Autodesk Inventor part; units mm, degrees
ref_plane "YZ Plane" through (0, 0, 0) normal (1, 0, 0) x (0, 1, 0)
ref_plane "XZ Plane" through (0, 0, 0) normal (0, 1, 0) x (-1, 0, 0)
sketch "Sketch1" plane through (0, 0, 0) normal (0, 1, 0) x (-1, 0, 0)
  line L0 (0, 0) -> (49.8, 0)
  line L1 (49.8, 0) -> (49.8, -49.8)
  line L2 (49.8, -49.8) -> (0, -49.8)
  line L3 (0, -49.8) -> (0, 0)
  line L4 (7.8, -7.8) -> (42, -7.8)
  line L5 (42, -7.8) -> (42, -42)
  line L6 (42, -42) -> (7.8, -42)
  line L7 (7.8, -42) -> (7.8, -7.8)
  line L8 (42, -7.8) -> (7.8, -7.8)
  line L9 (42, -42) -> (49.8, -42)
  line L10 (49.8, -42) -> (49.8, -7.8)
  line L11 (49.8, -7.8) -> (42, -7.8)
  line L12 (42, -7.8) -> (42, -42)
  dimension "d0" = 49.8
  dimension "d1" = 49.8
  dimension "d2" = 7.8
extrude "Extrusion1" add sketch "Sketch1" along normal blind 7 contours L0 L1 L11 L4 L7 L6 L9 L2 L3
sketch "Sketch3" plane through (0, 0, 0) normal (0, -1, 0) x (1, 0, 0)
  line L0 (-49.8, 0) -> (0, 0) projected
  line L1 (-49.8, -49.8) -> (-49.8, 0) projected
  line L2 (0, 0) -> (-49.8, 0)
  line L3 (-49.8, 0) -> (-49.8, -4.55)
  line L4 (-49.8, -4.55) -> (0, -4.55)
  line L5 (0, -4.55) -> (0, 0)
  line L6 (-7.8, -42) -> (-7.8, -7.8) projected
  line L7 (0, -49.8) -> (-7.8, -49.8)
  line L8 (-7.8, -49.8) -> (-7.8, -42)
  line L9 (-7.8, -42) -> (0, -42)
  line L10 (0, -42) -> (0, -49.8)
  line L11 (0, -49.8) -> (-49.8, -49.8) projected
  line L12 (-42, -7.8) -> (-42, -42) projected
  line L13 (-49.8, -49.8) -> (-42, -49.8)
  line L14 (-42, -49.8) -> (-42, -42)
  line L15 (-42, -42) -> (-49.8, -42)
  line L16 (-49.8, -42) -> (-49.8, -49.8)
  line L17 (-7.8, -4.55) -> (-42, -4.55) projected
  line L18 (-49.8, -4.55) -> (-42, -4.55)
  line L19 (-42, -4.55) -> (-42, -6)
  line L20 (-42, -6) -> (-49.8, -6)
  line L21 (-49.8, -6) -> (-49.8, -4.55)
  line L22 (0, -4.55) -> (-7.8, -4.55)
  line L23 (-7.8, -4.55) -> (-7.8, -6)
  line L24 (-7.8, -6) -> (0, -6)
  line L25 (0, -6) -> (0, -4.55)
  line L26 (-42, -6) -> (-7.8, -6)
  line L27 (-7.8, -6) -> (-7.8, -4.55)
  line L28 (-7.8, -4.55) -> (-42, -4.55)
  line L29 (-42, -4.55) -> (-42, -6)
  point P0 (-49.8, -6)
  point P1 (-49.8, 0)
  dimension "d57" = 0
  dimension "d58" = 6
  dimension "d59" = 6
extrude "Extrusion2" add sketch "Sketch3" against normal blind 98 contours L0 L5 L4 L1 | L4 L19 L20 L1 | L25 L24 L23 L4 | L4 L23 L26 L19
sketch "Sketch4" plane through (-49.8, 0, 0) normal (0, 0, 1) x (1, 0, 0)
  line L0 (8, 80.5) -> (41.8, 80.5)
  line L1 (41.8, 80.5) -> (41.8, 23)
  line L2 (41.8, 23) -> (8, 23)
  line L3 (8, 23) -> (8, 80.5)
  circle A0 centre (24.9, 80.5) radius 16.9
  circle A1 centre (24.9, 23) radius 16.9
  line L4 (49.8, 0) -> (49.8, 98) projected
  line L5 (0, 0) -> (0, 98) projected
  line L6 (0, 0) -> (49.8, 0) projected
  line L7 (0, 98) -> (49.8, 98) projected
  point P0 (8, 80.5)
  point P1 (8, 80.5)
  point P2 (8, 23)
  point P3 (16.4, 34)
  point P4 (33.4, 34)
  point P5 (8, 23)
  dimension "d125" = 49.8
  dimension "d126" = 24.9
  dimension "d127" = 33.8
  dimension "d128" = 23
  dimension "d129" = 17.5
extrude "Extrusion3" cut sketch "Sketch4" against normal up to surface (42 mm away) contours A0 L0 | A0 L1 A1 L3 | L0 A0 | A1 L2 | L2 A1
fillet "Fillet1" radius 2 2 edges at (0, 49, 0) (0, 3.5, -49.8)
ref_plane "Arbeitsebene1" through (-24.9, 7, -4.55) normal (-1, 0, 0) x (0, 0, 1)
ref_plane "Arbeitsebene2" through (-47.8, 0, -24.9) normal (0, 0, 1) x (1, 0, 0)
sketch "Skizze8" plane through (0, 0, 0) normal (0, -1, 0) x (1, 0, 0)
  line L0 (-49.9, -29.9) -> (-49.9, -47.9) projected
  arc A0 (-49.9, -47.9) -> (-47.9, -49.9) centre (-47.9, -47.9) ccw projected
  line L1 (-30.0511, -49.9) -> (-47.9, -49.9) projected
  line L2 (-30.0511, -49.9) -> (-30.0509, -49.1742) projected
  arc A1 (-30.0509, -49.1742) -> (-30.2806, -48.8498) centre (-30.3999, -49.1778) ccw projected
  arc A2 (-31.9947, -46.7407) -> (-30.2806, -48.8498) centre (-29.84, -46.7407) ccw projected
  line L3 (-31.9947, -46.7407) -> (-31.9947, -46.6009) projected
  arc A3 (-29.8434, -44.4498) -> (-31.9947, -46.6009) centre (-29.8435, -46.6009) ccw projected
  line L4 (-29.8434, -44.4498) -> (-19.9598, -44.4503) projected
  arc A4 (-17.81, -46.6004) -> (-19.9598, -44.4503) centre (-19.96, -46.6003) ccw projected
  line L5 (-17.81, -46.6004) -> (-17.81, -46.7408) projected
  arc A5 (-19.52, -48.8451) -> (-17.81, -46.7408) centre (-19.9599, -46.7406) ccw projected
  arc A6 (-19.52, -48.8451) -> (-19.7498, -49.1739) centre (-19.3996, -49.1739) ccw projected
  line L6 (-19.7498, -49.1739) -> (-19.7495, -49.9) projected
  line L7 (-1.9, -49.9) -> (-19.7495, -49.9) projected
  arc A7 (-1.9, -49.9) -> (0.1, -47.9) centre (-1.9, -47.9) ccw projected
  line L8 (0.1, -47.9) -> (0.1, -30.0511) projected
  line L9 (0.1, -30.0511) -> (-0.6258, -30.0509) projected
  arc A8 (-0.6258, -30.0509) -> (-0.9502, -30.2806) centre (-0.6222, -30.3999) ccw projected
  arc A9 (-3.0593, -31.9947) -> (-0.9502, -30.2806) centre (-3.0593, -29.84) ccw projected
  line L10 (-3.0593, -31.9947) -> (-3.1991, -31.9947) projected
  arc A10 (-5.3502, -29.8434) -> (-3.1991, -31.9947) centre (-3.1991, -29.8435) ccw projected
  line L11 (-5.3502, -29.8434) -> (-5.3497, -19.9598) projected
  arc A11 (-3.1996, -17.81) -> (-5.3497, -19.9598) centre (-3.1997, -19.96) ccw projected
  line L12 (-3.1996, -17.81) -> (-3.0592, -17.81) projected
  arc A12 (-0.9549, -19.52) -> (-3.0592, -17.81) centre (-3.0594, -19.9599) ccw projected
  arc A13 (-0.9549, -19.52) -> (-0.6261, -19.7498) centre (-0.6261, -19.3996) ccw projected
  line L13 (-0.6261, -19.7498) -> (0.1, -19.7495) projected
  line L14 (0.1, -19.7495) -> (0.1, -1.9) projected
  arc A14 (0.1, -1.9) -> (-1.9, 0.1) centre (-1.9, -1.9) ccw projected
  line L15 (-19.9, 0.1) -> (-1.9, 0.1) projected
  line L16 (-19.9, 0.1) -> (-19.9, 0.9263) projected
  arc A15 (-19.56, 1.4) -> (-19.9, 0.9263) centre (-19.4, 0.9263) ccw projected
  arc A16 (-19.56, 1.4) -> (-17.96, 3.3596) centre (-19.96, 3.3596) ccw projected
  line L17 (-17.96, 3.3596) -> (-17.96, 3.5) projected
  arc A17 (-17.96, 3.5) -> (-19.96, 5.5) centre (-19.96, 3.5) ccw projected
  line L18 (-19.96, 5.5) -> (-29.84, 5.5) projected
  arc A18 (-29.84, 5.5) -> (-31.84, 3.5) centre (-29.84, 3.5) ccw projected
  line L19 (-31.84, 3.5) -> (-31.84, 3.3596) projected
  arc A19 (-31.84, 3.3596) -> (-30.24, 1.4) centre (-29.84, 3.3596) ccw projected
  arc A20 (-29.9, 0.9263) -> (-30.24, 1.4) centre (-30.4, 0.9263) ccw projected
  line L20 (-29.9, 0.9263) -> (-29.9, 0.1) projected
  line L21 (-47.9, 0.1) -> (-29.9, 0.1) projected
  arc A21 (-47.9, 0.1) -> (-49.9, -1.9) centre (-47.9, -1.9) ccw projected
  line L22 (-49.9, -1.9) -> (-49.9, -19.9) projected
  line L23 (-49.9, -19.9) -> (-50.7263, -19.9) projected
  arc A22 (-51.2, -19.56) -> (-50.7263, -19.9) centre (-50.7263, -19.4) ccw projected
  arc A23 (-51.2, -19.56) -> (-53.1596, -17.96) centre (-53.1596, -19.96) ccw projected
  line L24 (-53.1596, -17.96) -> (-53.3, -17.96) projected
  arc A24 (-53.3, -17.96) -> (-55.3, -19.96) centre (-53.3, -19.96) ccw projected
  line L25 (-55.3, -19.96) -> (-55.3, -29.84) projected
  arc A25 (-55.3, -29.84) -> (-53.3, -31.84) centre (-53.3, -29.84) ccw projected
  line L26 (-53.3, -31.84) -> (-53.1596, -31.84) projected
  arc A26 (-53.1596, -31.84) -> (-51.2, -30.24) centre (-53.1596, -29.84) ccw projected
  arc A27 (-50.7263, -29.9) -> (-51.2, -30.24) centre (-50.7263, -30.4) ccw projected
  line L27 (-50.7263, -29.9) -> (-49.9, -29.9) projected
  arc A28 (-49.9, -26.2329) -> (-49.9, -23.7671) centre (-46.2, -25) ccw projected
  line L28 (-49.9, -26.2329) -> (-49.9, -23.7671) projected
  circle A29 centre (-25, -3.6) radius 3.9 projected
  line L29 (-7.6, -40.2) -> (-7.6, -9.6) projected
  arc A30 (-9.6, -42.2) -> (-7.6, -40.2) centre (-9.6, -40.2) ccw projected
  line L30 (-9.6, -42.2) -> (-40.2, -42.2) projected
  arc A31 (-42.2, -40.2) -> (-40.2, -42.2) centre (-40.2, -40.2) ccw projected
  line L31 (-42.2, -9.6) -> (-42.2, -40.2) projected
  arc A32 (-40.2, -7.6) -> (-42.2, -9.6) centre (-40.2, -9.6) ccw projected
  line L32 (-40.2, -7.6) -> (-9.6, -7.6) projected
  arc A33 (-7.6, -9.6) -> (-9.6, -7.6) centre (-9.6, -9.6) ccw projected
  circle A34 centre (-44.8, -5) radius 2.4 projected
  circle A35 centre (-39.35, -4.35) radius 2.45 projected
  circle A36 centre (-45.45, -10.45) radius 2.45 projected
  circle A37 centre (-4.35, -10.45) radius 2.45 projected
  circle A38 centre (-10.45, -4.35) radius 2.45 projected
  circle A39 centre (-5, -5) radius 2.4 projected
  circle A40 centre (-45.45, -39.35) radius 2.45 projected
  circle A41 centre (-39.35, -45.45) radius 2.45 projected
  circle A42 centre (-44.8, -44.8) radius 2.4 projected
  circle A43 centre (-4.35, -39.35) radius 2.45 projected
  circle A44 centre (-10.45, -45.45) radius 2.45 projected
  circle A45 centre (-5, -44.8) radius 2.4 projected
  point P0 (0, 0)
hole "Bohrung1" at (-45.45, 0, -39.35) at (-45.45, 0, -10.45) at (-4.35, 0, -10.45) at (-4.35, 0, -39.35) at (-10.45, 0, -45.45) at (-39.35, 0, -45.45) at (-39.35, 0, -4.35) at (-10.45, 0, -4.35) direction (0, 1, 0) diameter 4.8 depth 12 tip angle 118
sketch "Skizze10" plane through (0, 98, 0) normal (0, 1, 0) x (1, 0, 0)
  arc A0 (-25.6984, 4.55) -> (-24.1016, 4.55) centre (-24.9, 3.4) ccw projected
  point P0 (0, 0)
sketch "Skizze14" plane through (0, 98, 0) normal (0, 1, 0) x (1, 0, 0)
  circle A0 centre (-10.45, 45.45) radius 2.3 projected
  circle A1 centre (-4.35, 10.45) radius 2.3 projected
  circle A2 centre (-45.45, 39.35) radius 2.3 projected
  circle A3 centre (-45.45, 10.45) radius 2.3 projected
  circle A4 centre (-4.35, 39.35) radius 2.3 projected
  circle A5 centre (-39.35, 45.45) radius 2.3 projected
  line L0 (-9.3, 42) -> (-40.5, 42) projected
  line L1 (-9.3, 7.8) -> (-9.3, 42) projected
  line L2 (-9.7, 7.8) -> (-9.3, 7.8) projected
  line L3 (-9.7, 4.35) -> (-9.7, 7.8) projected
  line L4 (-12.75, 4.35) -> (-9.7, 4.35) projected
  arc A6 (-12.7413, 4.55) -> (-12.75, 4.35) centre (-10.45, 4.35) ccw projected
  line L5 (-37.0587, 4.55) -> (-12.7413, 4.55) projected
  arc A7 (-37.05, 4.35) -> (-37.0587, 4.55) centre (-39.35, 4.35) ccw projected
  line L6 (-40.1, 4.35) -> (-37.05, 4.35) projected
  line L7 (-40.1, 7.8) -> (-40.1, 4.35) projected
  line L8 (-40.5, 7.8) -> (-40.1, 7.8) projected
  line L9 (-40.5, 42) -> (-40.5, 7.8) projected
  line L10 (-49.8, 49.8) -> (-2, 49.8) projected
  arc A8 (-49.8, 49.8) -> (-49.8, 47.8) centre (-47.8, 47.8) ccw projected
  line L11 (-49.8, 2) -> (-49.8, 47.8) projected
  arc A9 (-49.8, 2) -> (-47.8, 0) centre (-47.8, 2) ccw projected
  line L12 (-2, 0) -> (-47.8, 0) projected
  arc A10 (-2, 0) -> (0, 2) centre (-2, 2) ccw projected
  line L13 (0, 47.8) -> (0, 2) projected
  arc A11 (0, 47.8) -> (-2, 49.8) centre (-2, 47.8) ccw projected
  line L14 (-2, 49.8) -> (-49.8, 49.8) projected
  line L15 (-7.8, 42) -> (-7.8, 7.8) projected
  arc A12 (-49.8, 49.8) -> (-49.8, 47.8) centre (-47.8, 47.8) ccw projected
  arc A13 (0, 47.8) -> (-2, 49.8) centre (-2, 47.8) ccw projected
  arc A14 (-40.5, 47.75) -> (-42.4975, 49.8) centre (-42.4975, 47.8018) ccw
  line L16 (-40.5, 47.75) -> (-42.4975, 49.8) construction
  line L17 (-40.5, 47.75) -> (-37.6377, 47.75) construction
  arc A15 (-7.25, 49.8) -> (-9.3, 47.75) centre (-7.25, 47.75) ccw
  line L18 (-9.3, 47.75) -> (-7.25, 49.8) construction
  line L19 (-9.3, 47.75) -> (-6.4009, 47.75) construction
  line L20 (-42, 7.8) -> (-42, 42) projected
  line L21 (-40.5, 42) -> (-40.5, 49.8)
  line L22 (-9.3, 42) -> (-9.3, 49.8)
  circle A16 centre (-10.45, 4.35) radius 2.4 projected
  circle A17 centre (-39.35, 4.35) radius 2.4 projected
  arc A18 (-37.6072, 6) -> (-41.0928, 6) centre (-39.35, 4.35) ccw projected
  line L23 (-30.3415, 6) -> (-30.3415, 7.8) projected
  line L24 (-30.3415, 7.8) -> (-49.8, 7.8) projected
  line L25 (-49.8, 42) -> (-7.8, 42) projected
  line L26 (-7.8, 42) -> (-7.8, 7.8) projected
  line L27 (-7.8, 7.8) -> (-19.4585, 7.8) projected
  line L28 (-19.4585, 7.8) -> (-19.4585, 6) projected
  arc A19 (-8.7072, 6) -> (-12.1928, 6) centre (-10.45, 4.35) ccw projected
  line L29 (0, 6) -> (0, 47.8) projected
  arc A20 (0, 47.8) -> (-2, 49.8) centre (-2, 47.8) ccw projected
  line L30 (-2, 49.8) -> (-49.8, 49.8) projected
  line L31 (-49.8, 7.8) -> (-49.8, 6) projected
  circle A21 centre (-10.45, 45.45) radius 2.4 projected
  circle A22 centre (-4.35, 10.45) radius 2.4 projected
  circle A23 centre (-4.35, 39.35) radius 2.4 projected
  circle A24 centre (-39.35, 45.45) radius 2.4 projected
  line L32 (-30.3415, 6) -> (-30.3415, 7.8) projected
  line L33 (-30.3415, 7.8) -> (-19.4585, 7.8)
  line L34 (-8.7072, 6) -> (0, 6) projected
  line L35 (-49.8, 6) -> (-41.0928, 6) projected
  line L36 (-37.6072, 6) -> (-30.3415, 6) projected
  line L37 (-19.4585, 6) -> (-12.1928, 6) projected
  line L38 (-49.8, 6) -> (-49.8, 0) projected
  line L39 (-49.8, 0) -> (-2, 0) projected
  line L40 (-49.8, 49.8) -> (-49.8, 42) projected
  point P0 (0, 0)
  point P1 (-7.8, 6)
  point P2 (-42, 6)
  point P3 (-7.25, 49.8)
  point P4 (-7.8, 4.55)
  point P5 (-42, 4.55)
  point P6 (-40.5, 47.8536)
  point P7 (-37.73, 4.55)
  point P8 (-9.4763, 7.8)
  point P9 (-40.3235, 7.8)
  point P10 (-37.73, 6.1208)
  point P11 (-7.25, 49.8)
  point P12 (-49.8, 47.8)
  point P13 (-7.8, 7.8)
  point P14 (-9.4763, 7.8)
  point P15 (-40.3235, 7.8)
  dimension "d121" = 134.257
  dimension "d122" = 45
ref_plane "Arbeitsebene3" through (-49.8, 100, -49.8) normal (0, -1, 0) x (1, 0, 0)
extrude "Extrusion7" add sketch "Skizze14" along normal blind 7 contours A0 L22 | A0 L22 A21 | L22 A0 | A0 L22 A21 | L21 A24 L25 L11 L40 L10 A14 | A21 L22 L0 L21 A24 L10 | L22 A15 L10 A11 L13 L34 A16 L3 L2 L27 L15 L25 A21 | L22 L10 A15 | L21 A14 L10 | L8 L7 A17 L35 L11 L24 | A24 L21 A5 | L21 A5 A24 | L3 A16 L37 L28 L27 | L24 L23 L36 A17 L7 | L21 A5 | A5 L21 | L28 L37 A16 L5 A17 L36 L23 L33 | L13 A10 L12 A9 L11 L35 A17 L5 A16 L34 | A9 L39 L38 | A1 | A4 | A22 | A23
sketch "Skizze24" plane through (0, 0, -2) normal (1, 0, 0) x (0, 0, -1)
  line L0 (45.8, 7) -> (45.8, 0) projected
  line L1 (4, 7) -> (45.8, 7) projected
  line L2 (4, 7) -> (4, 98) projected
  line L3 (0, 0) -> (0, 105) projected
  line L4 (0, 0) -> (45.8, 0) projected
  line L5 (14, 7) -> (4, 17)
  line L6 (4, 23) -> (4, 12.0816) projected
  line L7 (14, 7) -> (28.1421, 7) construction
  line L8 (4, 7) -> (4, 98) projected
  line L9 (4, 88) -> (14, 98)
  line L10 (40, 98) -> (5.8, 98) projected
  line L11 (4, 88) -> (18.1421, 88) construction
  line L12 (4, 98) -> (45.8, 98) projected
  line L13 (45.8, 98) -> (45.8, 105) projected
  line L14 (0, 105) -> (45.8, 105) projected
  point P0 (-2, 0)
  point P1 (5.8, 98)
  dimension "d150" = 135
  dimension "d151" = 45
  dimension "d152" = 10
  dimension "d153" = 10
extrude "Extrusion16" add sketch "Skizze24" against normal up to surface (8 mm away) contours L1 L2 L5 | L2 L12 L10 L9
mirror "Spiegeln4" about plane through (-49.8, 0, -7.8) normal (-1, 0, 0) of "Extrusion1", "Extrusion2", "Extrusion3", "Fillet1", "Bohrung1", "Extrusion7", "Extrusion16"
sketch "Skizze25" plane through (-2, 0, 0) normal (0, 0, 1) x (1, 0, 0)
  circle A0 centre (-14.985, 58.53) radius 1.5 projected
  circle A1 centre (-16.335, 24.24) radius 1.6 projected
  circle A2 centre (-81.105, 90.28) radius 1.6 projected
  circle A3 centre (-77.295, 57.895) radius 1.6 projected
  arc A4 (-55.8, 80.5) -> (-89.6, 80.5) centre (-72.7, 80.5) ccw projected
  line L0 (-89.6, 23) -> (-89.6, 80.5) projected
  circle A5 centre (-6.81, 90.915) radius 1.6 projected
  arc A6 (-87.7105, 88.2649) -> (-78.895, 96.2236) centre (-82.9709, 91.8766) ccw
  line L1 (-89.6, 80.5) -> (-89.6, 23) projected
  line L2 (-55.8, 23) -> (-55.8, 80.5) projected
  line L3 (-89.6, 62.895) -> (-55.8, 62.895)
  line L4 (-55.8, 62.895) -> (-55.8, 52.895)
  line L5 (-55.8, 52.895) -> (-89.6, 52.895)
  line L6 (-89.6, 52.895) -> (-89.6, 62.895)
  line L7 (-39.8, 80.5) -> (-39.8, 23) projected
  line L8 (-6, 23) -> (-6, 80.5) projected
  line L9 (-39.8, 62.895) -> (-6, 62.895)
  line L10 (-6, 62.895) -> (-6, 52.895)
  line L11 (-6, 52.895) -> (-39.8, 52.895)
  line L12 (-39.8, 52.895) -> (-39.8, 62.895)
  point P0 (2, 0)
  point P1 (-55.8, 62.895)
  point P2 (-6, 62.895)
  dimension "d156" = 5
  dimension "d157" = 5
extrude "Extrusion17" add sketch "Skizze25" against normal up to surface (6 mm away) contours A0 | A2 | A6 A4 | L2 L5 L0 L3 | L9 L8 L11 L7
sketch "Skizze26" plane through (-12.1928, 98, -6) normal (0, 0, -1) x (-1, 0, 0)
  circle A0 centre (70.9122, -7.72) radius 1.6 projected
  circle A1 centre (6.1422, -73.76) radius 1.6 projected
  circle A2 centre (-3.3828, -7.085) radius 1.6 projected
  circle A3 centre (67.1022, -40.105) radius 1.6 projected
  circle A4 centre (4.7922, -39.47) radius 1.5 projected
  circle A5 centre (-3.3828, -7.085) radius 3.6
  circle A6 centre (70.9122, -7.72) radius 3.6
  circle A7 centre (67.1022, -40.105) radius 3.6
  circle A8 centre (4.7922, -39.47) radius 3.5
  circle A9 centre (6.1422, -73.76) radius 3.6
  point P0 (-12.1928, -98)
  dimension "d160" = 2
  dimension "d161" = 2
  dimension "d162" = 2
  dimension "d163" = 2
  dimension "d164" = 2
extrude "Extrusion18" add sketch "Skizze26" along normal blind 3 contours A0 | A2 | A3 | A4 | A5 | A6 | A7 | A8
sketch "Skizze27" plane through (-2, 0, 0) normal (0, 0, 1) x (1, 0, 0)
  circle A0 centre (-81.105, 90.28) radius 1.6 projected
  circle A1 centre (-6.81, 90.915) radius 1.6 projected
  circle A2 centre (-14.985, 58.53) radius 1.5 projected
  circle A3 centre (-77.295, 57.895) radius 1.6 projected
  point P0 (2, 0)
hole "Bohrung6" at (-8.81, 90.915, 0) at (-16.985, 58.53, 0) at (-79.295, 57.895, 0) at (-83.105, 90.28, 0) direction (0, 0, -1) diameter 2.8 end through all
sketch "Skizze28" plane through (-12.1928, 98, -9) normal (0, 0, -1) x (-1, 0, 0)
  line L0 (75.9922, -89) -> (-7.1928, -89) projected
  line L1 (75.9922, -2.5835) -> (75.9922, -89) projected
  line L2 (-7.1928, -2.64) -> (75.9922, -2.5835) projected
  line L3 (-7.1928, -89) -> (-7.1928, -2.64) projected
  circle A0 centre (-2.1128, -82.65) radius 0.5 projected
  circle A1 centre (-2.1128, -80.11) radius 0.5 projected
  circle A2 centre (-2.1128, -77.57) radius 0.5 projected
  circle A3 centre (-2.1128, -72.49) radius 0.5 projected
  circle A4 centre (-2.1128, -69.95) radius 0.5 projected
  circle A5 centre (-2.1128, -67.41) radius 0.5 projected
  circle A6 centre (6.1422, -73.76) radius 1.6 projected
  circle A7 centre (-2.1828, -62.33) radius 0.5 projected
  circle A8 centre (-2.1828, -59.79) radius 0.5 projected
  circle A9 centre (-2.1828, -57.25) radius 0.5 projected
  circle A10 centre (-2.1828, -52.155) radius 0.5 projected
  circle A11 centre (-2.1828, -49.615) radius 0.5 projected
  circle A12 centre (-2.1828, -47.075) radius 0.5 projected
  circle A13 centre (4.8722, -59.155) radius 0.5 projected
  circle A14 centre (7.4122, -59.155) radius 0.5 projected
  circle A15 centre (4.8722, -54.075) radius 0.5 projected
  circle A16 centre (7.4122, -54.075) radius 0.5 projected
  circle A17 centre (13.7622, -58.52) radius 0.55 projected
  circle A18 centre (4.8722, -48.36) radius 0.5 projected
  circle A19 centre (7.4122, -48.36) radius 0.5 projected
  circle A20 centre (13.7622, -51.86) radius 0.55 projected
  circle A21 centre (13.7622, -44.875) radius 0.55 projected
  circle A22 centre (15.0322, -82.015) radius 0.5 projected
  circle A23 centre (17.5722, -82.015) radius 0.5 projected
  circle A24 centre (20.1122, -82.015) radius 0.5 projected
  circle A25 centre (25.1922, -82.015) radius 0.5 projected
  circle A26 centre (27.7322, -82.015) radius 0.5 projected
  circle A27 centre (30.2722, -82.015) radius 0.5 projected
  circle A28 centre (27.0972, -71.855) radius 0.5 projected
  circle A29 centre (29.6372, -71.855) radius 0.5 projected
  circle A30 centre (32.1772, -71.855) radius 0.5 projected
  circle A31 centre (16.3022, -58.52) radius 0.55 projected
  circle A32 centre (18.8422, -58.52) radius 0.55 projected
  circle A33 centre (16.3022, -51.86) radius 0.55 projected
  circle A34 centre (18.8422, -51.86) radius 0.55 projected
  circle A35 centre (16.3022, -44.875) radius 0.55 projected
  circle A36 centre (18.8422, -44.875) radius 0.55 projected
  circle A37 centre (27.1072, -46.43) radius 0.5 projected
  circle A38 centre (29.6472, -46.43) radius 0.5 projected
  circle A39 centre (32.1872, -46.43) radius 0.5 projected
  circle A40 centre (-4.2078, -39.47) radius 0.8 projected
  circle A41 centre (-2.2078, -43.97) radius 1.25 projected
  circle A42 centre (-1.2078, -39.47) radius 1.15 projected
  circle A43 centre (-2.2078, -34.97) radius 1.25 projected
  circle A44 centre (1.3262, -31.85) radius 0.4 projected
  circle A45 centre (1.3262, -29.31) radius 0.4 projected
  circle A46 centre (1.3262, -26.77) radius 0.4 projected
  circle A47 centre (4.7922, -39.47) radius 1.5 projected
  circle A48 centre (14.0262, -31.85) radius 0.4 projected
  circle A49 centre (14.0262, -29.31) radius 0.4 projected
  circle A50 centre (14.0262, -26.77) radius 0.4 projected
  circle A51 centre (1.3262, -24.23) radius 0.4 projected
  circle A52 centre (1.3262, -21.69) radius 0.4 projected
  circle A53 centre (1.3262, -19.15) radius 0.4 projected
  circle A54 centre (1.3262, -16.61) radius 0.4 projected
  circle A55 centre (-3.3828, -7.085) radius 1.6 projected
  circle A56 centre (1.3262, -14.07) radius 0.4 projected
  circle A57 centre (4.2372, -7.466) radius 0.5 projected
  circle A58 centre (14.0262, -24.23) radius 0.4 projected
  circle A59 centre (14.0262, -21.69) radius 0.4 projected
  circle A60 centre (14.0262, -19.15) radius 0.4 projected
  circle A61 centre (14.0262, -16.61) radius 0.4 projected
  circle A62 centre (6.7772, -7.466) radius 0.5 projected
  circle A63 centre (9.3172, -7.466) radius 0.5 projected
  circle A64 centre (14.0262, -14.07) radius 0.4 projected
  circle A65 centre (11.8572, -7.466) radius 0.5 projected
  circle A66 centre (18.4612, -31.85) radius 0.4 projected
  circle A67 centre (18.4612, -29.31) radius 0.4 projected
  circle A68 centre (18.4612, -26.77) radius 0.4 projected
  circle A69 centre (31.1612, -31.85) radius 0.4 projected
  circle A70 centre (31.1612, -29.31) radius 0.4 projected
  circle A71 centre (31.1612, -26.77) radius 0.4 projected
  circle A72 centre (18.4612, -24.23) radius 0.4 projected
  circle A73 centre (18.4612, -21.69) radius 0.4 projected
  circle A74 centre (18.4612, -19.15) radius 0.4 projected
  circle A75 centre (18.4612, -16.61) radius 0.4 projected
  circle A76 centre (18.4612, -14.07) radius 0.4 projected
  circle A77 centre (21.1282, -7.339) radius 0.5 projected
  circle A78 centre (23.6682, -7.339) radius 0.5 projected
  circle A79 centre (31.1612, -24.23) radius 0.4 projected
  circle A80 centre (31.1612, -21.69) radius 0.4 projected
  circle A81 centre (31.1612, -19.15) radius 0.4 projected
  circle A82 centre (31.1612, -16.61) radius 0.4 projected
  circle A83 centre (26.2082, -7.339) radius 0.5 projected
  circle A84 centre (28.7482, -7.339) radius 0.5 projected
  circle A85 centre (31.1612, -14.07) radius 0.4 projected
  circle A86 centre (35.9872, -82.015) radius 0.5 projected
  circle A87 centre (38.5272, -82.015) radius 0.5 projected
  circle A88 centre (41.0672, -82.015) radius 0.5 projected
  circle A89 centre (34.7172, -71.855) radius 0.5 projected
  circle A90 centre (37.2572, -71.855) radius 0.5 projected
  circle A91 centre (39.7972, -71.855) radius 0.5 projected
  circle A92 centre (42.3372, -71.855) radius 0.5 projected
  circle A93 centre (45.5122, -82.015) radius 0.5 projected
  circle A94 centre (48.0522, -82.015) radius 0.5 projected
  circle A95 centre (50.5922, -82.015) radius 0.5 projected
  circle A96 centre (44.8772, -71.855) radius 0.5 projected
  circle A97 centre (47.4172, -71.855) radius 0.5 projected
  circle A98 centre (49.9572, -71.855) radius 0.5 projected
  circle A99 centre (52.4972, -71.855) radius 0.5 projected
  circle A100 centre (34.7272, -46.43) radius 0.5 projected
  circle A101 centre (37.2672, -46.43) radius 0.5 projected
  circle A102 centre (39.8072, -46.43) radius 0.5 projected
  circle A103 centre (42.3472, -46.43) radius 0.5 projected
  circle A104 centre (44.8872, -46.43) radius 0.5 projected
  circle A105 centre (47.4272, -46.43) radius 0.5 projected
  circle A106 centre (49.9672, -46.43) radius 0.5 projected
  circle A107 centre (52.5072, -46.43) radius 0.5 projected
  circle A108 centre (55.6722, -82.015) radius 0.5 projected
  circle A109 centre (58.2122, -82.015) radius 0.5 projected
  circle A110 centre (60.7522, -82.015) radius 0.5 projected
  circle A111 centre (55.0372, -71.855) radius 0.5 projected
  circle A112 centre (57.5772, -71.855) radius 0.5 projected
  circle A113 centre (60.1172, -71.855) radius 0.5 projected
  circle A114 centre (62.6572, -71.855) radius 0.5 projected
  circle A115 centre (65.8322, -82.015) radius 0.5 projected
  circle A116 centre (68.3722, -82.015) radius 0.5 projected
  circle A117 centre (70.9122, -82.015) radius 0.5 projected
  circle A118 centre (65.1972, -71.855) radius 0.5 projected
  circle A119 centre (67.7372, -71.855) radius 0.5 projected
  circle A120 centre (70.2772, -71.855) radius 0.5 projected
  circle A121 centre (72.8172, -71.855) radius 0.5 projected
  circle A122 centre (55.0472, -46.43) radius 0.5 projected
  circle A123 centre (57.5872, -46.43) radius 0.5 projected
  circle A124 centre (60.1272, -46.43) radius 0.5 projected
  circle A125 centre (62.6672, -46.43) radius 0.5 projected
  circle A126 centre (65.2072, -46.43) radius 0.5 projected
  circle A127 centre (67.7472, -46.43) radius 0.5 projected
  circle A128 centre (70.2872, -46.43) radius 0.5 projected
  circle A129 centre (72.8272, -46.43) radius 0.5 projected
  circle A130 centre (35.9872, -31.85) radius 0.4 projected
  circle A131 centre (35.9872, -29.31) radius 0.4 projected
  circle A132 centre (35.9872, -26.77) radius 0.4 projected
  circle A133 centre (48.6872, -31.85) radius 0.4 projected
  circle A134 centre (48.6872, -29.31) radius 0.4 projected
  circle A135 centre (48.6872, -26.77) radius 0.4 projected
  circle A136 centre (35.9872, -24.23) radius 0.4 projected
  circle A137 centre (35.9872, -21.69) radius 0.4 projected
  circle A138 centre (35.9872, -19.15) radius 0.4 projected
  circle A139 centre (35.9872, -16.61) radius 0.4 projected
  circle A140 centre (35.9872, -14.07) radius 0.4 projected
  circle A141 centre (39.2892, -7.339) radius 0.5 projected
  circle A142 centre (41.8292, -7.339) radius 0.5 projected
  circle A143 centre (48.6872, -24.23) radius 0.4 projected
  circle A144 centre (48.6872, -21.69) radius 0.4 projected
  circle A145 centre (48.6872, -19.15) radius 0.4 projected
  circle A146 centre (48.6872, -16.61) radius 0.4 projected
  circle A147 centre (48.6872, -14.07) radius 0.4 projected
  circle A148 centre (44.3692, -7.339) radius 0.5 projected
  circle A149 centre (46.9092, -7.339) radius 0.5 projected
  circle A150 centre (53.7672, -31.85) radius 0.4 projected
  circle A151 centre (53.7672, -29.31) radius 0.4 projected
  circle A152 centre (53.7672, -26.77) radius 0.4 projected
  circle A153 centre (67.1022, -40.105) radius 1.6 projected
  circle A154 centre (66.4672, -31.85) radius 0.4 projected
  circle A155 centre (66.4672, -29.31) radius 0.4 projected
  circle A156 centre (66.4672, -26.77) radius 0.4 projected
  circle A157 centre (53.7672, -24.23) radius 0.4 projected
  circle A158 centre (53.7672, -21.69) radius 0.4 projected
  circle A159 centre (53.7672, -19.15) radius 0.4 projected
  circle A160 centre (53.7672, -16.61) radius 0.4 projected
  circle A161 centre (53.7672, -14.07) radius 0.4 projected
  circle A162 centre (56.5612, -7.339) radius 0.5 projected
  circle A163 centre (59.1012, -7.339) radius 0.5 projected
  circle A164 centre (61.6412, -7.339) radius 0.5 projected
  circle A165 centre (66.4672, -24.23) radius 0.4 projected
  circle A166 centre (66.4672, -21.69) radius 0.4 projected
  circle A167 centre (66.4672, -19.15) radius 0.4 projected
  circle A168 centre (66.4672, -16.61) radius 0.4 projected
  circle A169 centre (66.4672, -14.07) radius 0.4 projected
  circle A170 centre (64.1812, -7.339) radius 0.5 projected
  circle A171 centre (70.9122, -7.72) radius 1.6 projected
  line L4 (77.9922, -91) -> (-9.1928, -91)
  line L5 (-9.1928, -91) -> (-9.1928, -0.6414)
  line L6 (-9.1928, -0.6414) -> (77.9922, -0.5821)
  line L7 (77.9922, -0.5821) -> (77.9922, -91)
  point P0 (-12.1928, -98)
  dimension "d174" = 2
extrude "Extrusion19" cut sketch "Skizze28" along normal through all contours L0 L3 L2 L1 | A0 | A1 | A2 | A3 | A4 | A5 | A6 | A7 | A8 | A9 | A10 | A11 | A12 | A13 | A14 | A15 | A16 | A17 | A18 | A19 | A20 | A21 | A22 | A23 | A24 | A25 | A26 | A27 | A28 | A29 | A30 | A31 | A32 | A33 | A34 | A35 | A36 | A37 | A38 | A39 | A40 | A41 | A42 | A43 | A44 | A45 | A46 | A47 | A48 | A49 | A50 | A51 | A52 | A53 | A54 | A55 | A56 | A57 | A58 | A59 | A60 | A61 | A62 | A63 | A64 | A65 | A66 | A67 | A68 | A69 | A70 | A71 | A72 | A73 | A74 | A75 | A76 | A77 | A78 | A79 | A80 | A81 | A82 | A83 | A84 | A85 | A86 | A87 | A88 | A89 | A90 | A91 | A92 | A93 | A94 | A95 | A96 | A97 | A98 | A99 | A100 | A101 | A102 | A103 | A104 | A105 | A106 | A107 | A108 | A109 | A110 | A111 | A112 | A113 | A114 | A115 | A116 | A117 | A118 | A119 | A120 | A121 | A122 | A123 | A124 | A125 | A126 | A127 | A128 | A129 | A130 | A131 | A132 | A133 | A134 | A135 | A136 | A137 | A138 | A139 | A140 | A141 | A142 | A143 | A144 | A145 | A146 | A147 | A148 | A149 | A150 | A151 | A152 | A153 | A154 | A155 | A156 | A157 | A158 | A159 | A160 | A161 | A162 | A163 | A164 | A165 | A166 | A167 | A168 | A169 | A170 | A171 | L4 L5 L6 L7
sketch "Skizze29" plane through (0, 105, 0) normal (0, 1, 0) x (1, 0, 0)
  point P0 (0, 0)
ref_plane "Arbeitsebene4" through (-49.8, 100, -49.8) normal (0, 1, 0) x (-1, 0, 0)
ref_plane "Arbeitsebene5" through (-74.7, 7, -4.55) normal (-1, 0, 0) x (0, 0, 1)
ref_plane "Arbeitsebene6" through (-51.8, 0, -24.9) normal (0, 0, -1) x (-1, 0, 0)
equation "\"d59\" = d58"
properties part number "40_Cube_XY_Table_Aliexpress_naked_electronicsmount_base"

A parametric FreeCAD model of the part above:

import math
import FreeCAD as App
import Part
import Sketcher
Q = App.Units.Quantity


def edges_at(feature, points):
    """Names of the edges that pass closest to the given points."""
    edges = feature.Shape.Edges
    near = lambda p: min(range(len(edges)), key=lambda i: edges[i].distToShape(Part.Vertex(*p))[0])
    return sorted({f"Edge{near(p) + 1}" for p in points})

doc = App.newDocument("Part")
body = doc.addObject("PartDesign::Body", "Body")

# Sketch on XZ plane
sketch1 = doc.addObject("Sketcher::SketchObject", "Sketch")
body.addObject(sketch1)
sketch1.AttachmentSupport = (doc.XZ_Plane, [""])
sketch1.MapMode = "FlatFace"
sketch1.addGeometry(Part.LineSegment(App.Vector(-49.8, 0, 0), App.Vector(0, 0, 0)), False)
sketch1.addGeometry(Part.LineSegment(App.Vector(0, 0, 0), App.Vector(0, -49.8, 0)), False)
sketch1.addGeometry(Part.LineSegment(App.Vector(0, -49.8, 0), App.Vector(-49.8, -49.8, 0)), False)
sketch1.addGeometry(Part.LineSegment(App.Vector(-49.8, -49.8, 0), App.Vector(-49.8, -42, 0)), False)
sketch1.addGeometry(Part.LineSegment(App.Vector(-49.8, -42, 0), App.Vector(-7.8, -42, 0)), False)
sketch1.addGeometry(Part.LineSegment(App.Vector(-7.8, -42, 0), App.Vector(-7.8, -7.8, 0)), False)
sketch1.addGeometry(Part.LineSegment(App.Vector(-7.8, -7.8, 0), App.Vector(-49.8, -7.8, 0)), False)
sketch1.addGeometry(Part.LineSegment(App.Vector(-49.8, -7.8, 0), App.Vector(-49.8, 0, 0)), False)
sketch1.addConstraint(Sketcher.Constraint("Coincident", 0, 2, 1, 1))
sketch1.addConstraint(Sketcher.Constraint("Coincident", 1, 2, 2, 1))
sketch1.addConstraint(Sketcher.Constraint("Coincident", 2, 2, 3, 1))
sketch1.addConstraint(Sketcher.Constraint("Coincident", 3, 2, 4, 1))
sketch1.addConstraint(Sketcher.Constraint("Coincident", 4, 2, 5, 1))
sketch1.addConstraint(Sketcher.Constraint("Coincident", 5, 2, 6, 1))
sketch1.addConstraint(Sketcher.Constraint("Coincident", 6, 2, 7, 1))
sketch1.addConstraint(Sketcher.Constraint("Coincident", 7, 2, 0, 1))
sketch1.addConstraint(Sketcher.Constraint("Horizontal", 0))
sketch1.addConstraint(Sketcher.Constraint("Vertical", 1))
sketch1.addConstraint(Sketcher.Constraint("Horizontal", 2))
sketch1.addConstraint(Sketcher.Constraint("Vertical", 3))
sketch1.addConstraint(Sketcher.Constraint("Horizontal", 4))
sketch1.addConstraint(Sketcher.Constraint("Vertical", 5))
sketch1.addConstraint(Sketcher.Constraint("Horizontal", 6))
sketch1.addConstraint(Sketcher.Constraint("Vertical", 7))
sketch1.addConstraint(Sketcher.Constraint("Coincident", 0, 2, -1, 1))
sketch1.addConstraint(Sketcher.Constraint("Vertical", 3, 2, 6, 2))
sketch1.addConstraint(Sketcher.Constraint("Equal", 2, 1))
sketch1.addConstraint(Sketcher.Constraint("Equal", 3, 7))
sketch1.addConstraint(Sketcher.Constraint("DistanceX", 0, 1, 0, 2, 49.8))
sketch1.addConstraint(Sketcher.Constraint("DistanceY", 3, 1, 3, 2, 7.8))
sketch1.addConstraint(Sketcher.Constraint("DistanceX", 4, 2, -1, 1, 7.8))
pad1 = doc.addObject("PartDesign::Pad", "Pad")
body.addObject(pad1)
pad1.Profile = sketch1
pad1.Length = 7
pad1.Reversed = True

# Sketch on XZ plane
sketch2 = doc.addObject("Sketcher::SketchObject", "Sketch001")
body.addObject(sketch2)
sketch2.AttachmentSupport = (doc.XZ_Plane, [""])
sketch2.MapMode = "FlatFace"
sketch2.addGeometry(Part.LineSegment(App.Vector(0, 0, 0), App.Vector(-49.8, 0, 0)), False)
sketch2.addGeometry(Part.LineSegment(App.Vector(-49.8, 0, 0), App.Vector(-49.8, -6, 0)), False)
sketch2.addGeometry(Part.LineSegment(App.Vector(-49.8, -6, 0), App.Vector(0, -6, 0)), False)
sketch2.addGeometry(Part.LineSegment(App.Vector(0, -6, 0), App.Vector(0, 0, 0)), False)
sketch2.addConstraint(Sketcher.Constraint("Coincident", 0, 2, 1, 1))
sketch2.addConstraint(Sketcher.Constraint("Coincident", 1, 2, 2, 1))
sketch2.addConstraint(Sketcher.Constraint("Coincident", 2, 2, 3, 1))
sketch2.addConstraint(Sketcher.Constraint("Coincident", 3, 2, 0, 1))
sketch2.addConstraint(Sketcher.Constraint("Horizontal", 0))
sketch2.addConstraint(Sketcher.Constraint("Vertical", 1))
sketch2.addConstraint(Sketcher.Constraint("Horizontal", 2))
sketch2.addConstraint(Sketcher.Constraint("Vertical", 3))
sketch2.addConstraint(Sketcher.Constraint("Coincident", 3, 2, -1, 1))
sketch2.addConstraint(Sketcher.Constraint("DistanceY", 1, 2, 1, 1, 6.0))
sketch2.addConstraint(Sketcher.Constraint("DistanceX", 0, 2, 0, 1, 49.8))
pad2 = doc.addObject("PartDesign::Pad", "Pad001")
body.addObject(pad2)
pad2.Profile = sketch2
pad2.Length = 98
pad2.Reversed = True

# Sketch on XY plane
sketch3 = doc.addObject("Sketcher::SketchObject", "Sketch002")
body.addObject(sketch3)
sketch3.AttachmentSupport = (doc.XY_Plane, [""])
sketch3.MapMode = "FlatFace"
sketch3.addGeometry(Part.ArcOfCircle(Part.Circle(App.Vector(-24.9, 80.5, 0), App.Vector(0, 0, 1), 16.9), math.radians(0), math.radians(180)), False)
sketch3.addGeometry(Part.LineSegment(App.Vector(-41.8, 80.5, 0), App.Vector(-41.8, 23, 0)), False)
sketch3.addGeometry(Part.ArcOfCircle(Part.Circle(App.Vector(-24.9, 23, 0), App.Vector(0, 0, 1), 16.9), math.radians(180), math.radians(360)), False)
sketch3.addGeometry(Part.LineSegment(App.Vector(-8, 23, 0), App.Vector(-8, 80.5, 0)), False)
sketch3.addConstraint(Sketcher.Constraint("Tangent", 0, 2, 1, 1))
sketch3.addConstraint(Sketcher.Constraint("Tangent", 1, 2, 2, 1))
sketch3.addConstraint(Sketcher.Constraint("Tangent", 2, 2, 3, 1))
sketch3.addConstraint(Sketcher.Constraint("Tangent", 3, 2, 0, 1))
sketch3.addConstraint(Sketcher.Constraint("Vertical", 1))
sketch3.addConstraint(Sketcher.Constraint("Vertical", 3))
sketch3.addConstraint(Sketcher.Constraint("Radius", 0, 16.9))
sketch3.addConstraint(Sketcher.Constraint("DistanceY", -1, 1, 2, 3, 23.0))
sketch3.addConstraint(Sketcher.Constraint("DistanceX", 0, 3, -1, 1, 24.9))
sketch3.addConstraint(Sketcher.Constraint("DistanceY", 1, 2, 1, 1, 57.5))
pocket1 = doc.addObject("PartDesign::Pocket", "Pocket")
body.addObject(pocket1)
pocket1.Profile = sketch3
pocket1.Length = 42
doc.recompute()

fillet = doc.addObject("PartDesign::Fillet", "Fillet")
body.addObject(fillet)
fillet.Base = (pocket1, edges_at(pocket1, [(0, 49, 0), (0, 3.5, -49.8)]))
fillet.Radius = 2

# Sketch on XZ plane
sketch4 = doc.addObject("Sketcher::SketchObject", "Sketch003")
body.addObject(sketch4)
sketch4.AttachmentSupport = (doc.XZ_Plane, [""])
sketch4.MapMode = "FlatFace"
sketch4.addGeometry(Part.Circle(App.Vector(-45.45, -39.35, 0), App.Vector(0, 0, 1), 2.4), False)
sketch4.addGeometry(Part.Circle(App.Vector(-45.45, -10.45, 0), App.Vector(0, 0, 1), 2.4), False)
sketch4.addGeometry(Part.Circle(App.Vector(-4.35, -10.45, 0), App.Vector(0, 0, 1), 2.4), False)
sketch4.addGeometry(Part.Circle(App.Vector(-4.35, -39.35, 0), App.Vector(0, 0, 1), 2.4), False)
sketch4.addGeometry(Part.Circle(App.Vector(-10.45, -45.45, 0), App.Vector(0, 0, 1), 2.4), False)
sketch4.addGeometry(Part.Circle(App.Vector(-39.35, -45.45, 0), App.Vector(0, 0, 1), 2.4), False)
sketch4.addGeometry(Part.Circle(App.Vector(-39.35, -4.35, 0), App.Vector(0, 0, 1), 2.4), False)
sketch4.addGeometry(Part.Circle(App.Vector(-10.45, -4.35, 0), App.Vector(0, 0, 1), 2.4), False)
sketch4.addConstraint(Sketcher.Constraint("Equal", 0, 1))
sketch4.addConstraint(Sketcher.Constraint("Equal", 1, 2))
sketch4.addConstraint(Sketcher.Constraint("Equal", 2, 3))
sketch4.addConstraint(Sketcher.Constraint("Equal", 3, 4))
sketch4.addConstraint(Sketcher.Constraint("Equal", 4, 5))
sketch4.addConstraint(Sketcher.Constraint("Equal", 5, 6))
sketch4.addConstraint(Sketcher.Constraint("Equal", 6, 7))
sketch4.addConstraint(Sketcher.Constraint("Horizontal", 1, 3, 2, 3))
sketch4.addConstraint(Sketcher.Constraint("Horizontal", 0, 3, 3, 3))
sketch4.addConstraint(Sketcher.Constraint("Horizontal", 4, 3, 5, 3))
sketch4.addConstraint(Sketcher.Constraint("Horizontal", 6, 3, 7, 3))
sketch4.addConstraint(Sketcher.Constraint("Vertical", 0, 3, 1, 3))
sketch4.addConstraint(Sketcher.Constraint("Vertical", 2, 3, 3, 3))
sketch4.addConstraint(Sketcher.Constraint("Vertical", 5, 3, 6, 3))
sketch4.addConstraint(Sketcher.Constraint("Vertical", 4, 3, 7, 3))
sketch4.addConstraint(Sketcher.Constraint("Diameter", 0, 4.8))
sketch4.addConstraint(Sketcher.Constraint("DistanceX", 0, 3, 4, 3, 35.0))
sketch4.addConstraint(Sketcher.Constraint("DistanceY", 4, 3, 2, 3, 35.0))
sketch4.addConstraint(Sketcher.Constraint("DistanceX", 5, 3, 3, 3, 35.0))
sketch4.addConstraint(Sketcher.Constraint("DistanceY", 0, 3, 6, 3, 35.0))
sketch4.addConstraint(Sketcher.Constraint("DistanceY", 0, 3, 1, 3, 28.9))
sketch4.addConstraint(Sketcher.Constraint("DistanceX", 1, 3, 2, 3, 41.1))
sketch4.addConstraint(Sketcher.Constraint("DistanceX", 0, 3, -1, 1, 45.45))
sketch4.addConstraint(Sketcher.Constraint("DistanceY", 0, 3, -1, 1, 39.35))
doc.recompute()
hole = doc.addObject("PartDesign::Hole", "Hole")
body.addObject(hole)
hole.Profile = sketch4
hole.ThreadType = "None"
hole.Diameter = 4.8
hole.DepthType = "Dimension"
hole.Depth = 12
hole.DrillPoint = "Angled"
hole.DrillPointAngle = 118

# Sketch on XZ plane
sketch5 = doc.addObject("Sketcher::SketchObject", "Sketch004")
body.addObject(sketch5)
sketch5.AttachmentSupport = (doc.XZ_Plane, [""])
sketch5.MapMode = "FlatFace"
sketch5.AttachmentOffset = App.Placement(App.Vector(0, 0, -98), App.Rotation())
sketch5.addGeometry(Part.LineSegment(App.Vector(-2, -49.8, 0), App.Vector(-49.8, -49.8, 0)), False)
sketch5.addGeometry(Part.LineSegment(App.Vector(-49.8, -49.8, 0), App.Vector(-49.8, -42, 0)), False)
sketch5.addGeometry(Part.LineSegment(App.Vector(-49.8, -42, 0), App.Vector(-7.8, -42, 0)), False)
sketch5.addGeometry(Part.LineSegment(App.Vector(-7.8, -42, 0), App.Vector(-7.8, -7.8, 0)), False)
sketch5.addGeometry(Part.LineSegment(App.Vector(-7.8, -7.8, 0), App.Vector(-49.8, -7.8, 0)), False)
sketch5.addGeometry(Part.LineSegment(App.Vector(-49.8, -7.8, 0), App.Vector(-49.8, 0, 0)), False)
sketch5.addGeometry(Part.LineSegment(App.Vector(-49.8, 0, 0), App.Vector(-2, 0, 0)), False)
sketch5.addGeometry(Part.ArcOfCircle(Part.Circle(App.Vector(-2, -2, 0), App.Vector(0, 0, 1), 2), math.radians(0), math.radians(90)), False)
sketch5.addGeometry(Part.LineSegment(App.Vector(0, -2, 0), App.Vector(0, -47.8, 0)), False)
sketch5.addGeometry(Part.ArcOfCircle(Part.Circle(App.Vector(-2, -47.8, 0), App.Vector(0, 0, 1), 2), math.radians(-90), math.radians(0)), False)
sketch5.addGeometry(Part.Circle(App.Vector(-10.45, -4.35, 0), App.Vector(0, 0, 1), 2.4), False)
sketch5.addGeometry(Part.Circle(App.Vector(-39.35, -4.35, 0), App.Vector(0, 0, 1), 2.4), False)
sketch5.addConstraint(Sketcher.Constraint("Coincident", 0, 2, 1, 1))
sketch5.addConstraint(Sketcher.Constraint("Coincident", 1, 2, 2, 1))
sketch5.addConstraint(Sketcher.Constraint("Coincident", 2, 2, 3, 1))
sketch5.addConstraint(Sketcher.Constraint("Coincident", 3, 2, 4, 1))
sketch5.addConstraint(Sketcher.Constraint("Coincident", 4, 2, 5, 1))
sketch5.addConstraint(Sketcher.Constraint("Coincident", 5, 2, 6, 1))
sketch5.addConstraint(Sketcher.Constraint("Tangent", 6, 2, 7, 2))
sketch5.addConstraint(Sketcher.Constraint("Tangent", 7, 1, 8, 1))
sketch5.addConstraint(Sketcher.Constraint("Tangent", 8, 2, 9, 2))
sketch5.addConstraint(Sketcher.Constraint("Tangent", 9, 1, 0, 1))
sketch5.addConstraint(Sketcher.Constraint("Horizontal", 0))
sketch5.addConstraint(Sketcher.Constraint("Vertical", 1))
sketch5.addConstraint(Sketcher.Constraint("Horizontal", 2))
sketch5.addConstraint(Sketcher.Constraint("Vertical", 3))
sketch5.addConstraint(Sketcher.Constraint("Horizontal", 4))
sketch5.addConstraint(Sketcher.Constraint("Vertical", 5))
sketch5.addConstraint(Sketcher.Constraint("Horizontal", 6))
sketch5.addConstraint(Sketcher.Constraint("Vertical", 8))
sketch5.addConstraint(Sketcher.Constraint("Equal", 7, 9))
sketch5.addConstraint(Sketcher.Constraint("Equal", 10, 11))
sketch5.addConstraint(Sketcher.Constraint("PointOnObject", 5, 2, -1))
sketch5.addConstraint(Sketcher.Constraint("PointOnObject", 7, 1, -2))
sketch5.addConstraint(Sketcher.Constraint("Horizontal", 10, 3, 11, 3))
sketch5.addConstraint(Sketcher.Constraint("Vertical", 1, 2, 4, 2))
sketch5.addConstraint(Sketcher.Constraint("Equal", 1, 5))
sketch5.addConstraint(Sketcher.Constraint("Radius", 7, 2.0))
sketch5.addConstraint(Sketcher.Constraint("Diameter", 10, 4.8))
sketch5.addConstraint(Sketcher.Constraint("DistanceX", 2, 1, 2, 2, 42.0))
sketch5.addConstraint(Sketcher.Constraint("DistanceX", 0, 2, 0, 1, 47.8))
sketch5.addConstraint(Sketcher.Constraint("DistanceY", 1, 1, 1, 2, 7.8))
sketch5.addConstraint(Sketcher.Constraint("DistanceY", 3, 1, 3, 2, 34.2))
sketch5.addConstraint(Sketcher.Constraint("DistanceX", 11, 3, 10, 3, 28.9))
sketch5.addConstraint(Sketcher.Constraint("DistanceX", 10, 3, -1, 1, 10.45))
sketch5.addConstraint(Sketcher.Constraint("DistanceY", 10, 3, -1, 1, 4.35))
pad3 = doc.addObject("PartDesign::Pad", "Pad002")
body.addObject(pad3)
pad3.Profile = sketch5
pad3.Length = 7
pad3.Reversed = True

# Sketch on YZ plane
sketch6 = doc.addObject("Sketcher::SketchObject", "Sketch005")
body.addObject(sketch6)
sketch6.AttachmentSupport = (doc.YZ_Plane, [""])
sketch6.MapMode = "FlatFace"
sketch6.addGeometry(Part.LineSegment(App.Vector(7, -6, 0), App.Vector(7, -16, 0)), False)
sketch6.addGeometry(Part.LineSegment(App.Vector(7, -16, 0), App.Vector(17, -6, 0)), False)
sketch6.addGeometry(Part.LineSegment(App.Vector(17, -6, 0), App.Vector(7, -6, 0)), False)
sketch6.addGeometry(Part.LineSegment(App.Vector(98, -6, 0), App.Vector(88, -6, 0)), False)
sketch6.addGeometry(Part.LineSegment(App.Vector(88, -6, 0), App.Vector(98, -16, 0)), False)
sketch6.addGeometry(Part.LineSegment(App.Vector(98, -16, 0), App.Vector(98, -6, 0)), False)
sketch6.addConstraint(Sketcher.Constraint("Coincident", 0, 2, 1, 1))
sketch6.addConstraint(Sketcher.Constraint("Coincident", 1, 2, 2, 1))
sketch6.addConstraint(Sketcher.Constraint("Coincident", 2, 2, 0, 1))
sketch6.addConstraint(Sketcher.Constraint("Coincident", 3, 2, 4, 1))
sketch6.addConstraint(Sketcher.Constraint("Coincident", 4, 2, 5, 1))
sketch6.addConstraint(Sketcher.Constraint("Coincident", 5, 2, 3, 1))
sketch6.addConstraint(Sketcher.Constraint("Vertical", 0))
sketch6.addConstraint(Sketcher.Constraint("Horizontal", 2))
sketch6.addConstraint(Sketcher.Constraint("Horizontal", 3))
sketch6.addConstraint(Sketcher.Constraint("Vertical", 5))
sketch6.addConstraint(Sketcher.Constraint("Perpendicular", 1, 4))
sketch6.addConstraint(Sketcher.Constraint("Horizontal", 2, 2, 3, 2))
sketch6.addConstraint(Sketcher.Constraint("Horizontal", 0, 2, 4, 2))
sketch6.addConstraint(Sketcher.Constraint("Equal", 2, 3))
sketch6.addConstraint(Sketcher.Constraint("DistanceX", 2, 2, 2, 1, 10.0))
sketch6.addConstraint(Sketcher.Constraint("DistanceX", -1, 1, 0, 2, 7.0))
sketch6.addConstraint(Sketcher.Constraint("DistanceY", 0, 2, -1, 1, 16.0))
sketch6.addConstraint(Sketcher.Constraint("DistanceX", -1, 1, 3, 2, 88.0))
pad4 = doc.addObject("PartDesign::Pad", "Pad003")
body.addObject(pad4)
pad4.Profile = sketch6
pad4.Length = 8
pad4.Reversed = True
doc.recompute()

datumplane = doc.addObject("PartDesign::Plane", "DatumPlane")
body.addObject(datumplane)
datumplane.AttachmentSupport = (doc.YZ_Plane, [""])
datumplane.MapMode = "FlatFace"
datumplane.AttachmentOffset = App.Placement(App.Vector(0, 0, -49.8), App.Rotation())
mirrored = doc.addObject("PartDesign::Mirrored", "Mirrored")
body.addObject(mirrored)
mirrored.Originals = [pad1, pad2, pocket1, fillet, hole, pad3, pad4]
mirrored.MirrorPlane = (datumplane, [""])
body.Tip = mirrored

# Sketch on XY plane
sketch7 = doc.addObject("Sketcher::SketchObject", "Sketch006")
body.addObject(sketch7)
sketch7.AttachmentSupport = (doc.XY_Plane, [""])
sketch7.MapMode = "FlatFace"
sketch7.addGeometry(Part.LineSegment(App.Vector(-8, 62.895, 0), App.Vector(-41.8, 62.895, 0)), False)
sketch7.addGeometry(Part.LineSegment(App.Vector(-41.8, 62.895, 0), App.Vector(-41.8, 52.895, 0)), False)
sketch7.addGeometry(Part.LineSegment(App.Vector(-41.8, 52.895, 0), App.Vector(-8, 52.895, 0)), False)
sketch7.addGeometry(Part.LineSegment(App.Vector(-8, 52.895, 0), App.Vector(-8, 62.895, 0)), False)
sketch7.addGeometry(Part.ArcOfCircle(Part.Circle(App.Vector(-84.9709, 91.8766, 0), App.Vector(0, 0, 1), 5.958874), math.radians(-142.691645), math.radians(46.843489)), False)
sketch7.addGeometry(Part.ArcOfCircle(Part.Circle(App.Vector(-74.7, 80.5, 0), App.Vector(0, 0, 1), 16.9), math.radians(111.50413), math.radians(152.64757)), False)
sketch7.addGeometry(Part.LineSegment(App.Vector(-57.8, 52.895, 0), App.Vector(-57.8, 62.895, 0)), False)
sketch7.addGeometry(Part.LineSegment(App.Vector(-57.8, 62.895, 0), App.Vector(-91.6, 62.895, 0)), False)
sketch7.addGeometry(Part.LineSegment(App.Vector(-91.6, 62.895, 0), App.Vector(-91.6, 52.895, 0)), False)
sketch7.addGeometry(Part.LineSegment(App.Vector(-91.6, 52.895, 0), App.Vector(-57.8, 52.895, 0)), False)
sketch7.addGeometry(Part.Circle(App.Vector(-79.295, 57.895, 0), App.Vector(0, 0, 1), 1.6), False)
sketch7.addConstraint(Sketcher.Constraint("Coincident", 0, 2, 1, 1))
sketch7.addConstraint(Sketcher.Constraint("Coincident", 1, 2, 2, 1))
sketch7.addConstraint(Sketcher.Constraint("Coincident", 2, 2, 3, 1))
sketch7.addConstraint(Sketcher.Constraint("Coincident", 3, 2, 0, 1))
sketch7.addConstraint(Sketcher.Constraint("Coincident", 4, 1, 5, 2))
sketch7.addConstraint(Sketcher.Constraint("Coincident", 5, 1, 4, 2))
sketch7.addConstraint(Sketcher.Constraint("Coincident", 6, 2, 7, 1))
sketch7.addConstraint(Sketcher.Constraint("Coincident", 7, 2, 8, 1))
sketch7.addConstraint(Sketcher.Constraint("Coincident", 8, 2, 9, 1))
sketch7.addConstraint(Sketcher.Constraint("Coincident", 9, 2, 6, 1))
sketch7.addConstraint(Sketcher.Constraint("Horizontal", 0))
sketch7.addConstraint(Sketcher.Constraint("Vertical", 1))
sketch7.addConstraint(Sketcher.Constraint("Horizontal", 2))
sketch7.addConstraint(Sketcher.Constraint("Vertical", 3))
sketch7.addConstraint(Sketcher.Constraint("Vertical", 6))
sketch7.addConstraint(Sketcher.Constraint("Horizontal", 7))
sketch7.addConstraint(Sketcher.Constraint("Vertical", 8))
sketch7.addConstraint(Sketcher.Constraint("Horizontal", 9))
sketch7.addConstraint(Sketcher.Constraint("Horizontal", 3, 2, 6, 2))
sketch7.addConstraint(Sketcher.Constraint("Horizontal", 2, 2, 8, 2))
sketch7.addConstraint(Sketcher.Constraint("Equal", 2, 7))
sketch7.addConstraint(Sketcher.Constraint("DistanceY", 10, 3, 0, 2, 5.0))
sketch7.addConstraint(Sketcher.Constraint("DistanceY", 1, 2, 10, 3, 5.0))
sketch7.addConstraint(Sketcher.Constraint("Diameter", 10, 3.2))
sketch7.addConstraint(Sketcher.Constraint("Radius", 5, 16.9))
sketch7.addConstraint(Sketcher.Constraint("DistanceX", 0, 2, 0, 1, 33.8))
sketch7.addConstraint(Sketcher.Constraint("DistanceX", 2, 2, -1, 1, 8.0))
sketch7.addConstraint(Sketcher.Constraint("DistanceX", 6, 2, 0, 2, 16.0))
sketch7.addConstraint(Sketcher.Constraint("DistanceX", 5, 3, -1, 1, 74.7))
sketch7.addConstraint(Sketcher.Constraint("DistanceY", -1, 1, 5, 3, 80.5))
sketch7.addConstraint(Sketcher.Constraint("Radius", 4, 5.9589))
sketch7.addConstraint(Sketcher.Constraint("DistanceX", 5, 1, 10, 3, 1.6))
sketch7.addConstraint(Sketcher.Constraint("DistanceY", 10, 3, 4, 1, 30.37))
sketch7.addConstraint(Sketcher.Constraint("DistanceX", 4, 3, -1, 1, 84.971))
sketch7.addConstraint(Sketcher.Constraint("DistanceX", 10, 3, -1, 1, 79.295))
pad5 = doc.addObject("PartDesign::Pad", "Pad004")
body.addObject(pad5)
pad5.Profile = sketch7
pad5.Length = 6
pad5.Reversed = True

# Sketch on XY plane
sketch8 = doc.addObject("Sketcher::SketchObject", "Sketch007")
body.addObject(sketch8)
sketch8.AttachmentSupport = (doc.XY_Plane, [""])
sketch8.MapMode = "FlatFace"
sketch8.AttachmentOffset = App.Placement(App.Vector(0, 0, -6), App.Rotation())
sketch8.addGeometry(Part.Circle(App.Vector(-83.105, 90.28, 0), App.Vector(0, 0, 1), 3.6), False)
sketch8.addGeometry(Part.Circle(App.Vector(-8.81, 90.915, 0), App.Vector(0, 0, 1), 3.6), False)
sketch8.addGeometry(Part.Circle(App.Vector(-79.295, 57.895, 0), App.Vector(0, 0, 1), 3.6), False)
sketch8.addGeometry(Part.Circle(App.Vector(-16.985, 58.53, 0), App.Vector(0, 0, 1), 3.5), False)
sketch8.addConstraint(Sketcher.Constraint("Equal", 0, 1))
sketch8.addConstraint(Sketcher.Constraint("Equal", 1, 2))
sketch8.addConstraint(Sketcher.Constraint("Diameter", 3, 7.0))
sketch8.addConstraint(Sketcher.Constraint("Diameter", 0, 7.2))
sketch8.addConstraint(Sketcher.Constraint("DistanceY", -1, 1, 0, 3, 90.28))
sketch8.addConstraint(Sketcher.Constraint("DistanceX", 1, 3, -1, 1, 8.81))
sketch8.addConstraint(Sketcher.Constraint("DistanceY", -1, 1, 3, 3, 58.53))
sketch8.addConstraint(Sketcher.Constraint("DistanceX", 0, 3, 2, 3, 3.81))
sketch8.addConstraint(Sketcher.Constraint("DistanceY", 2, 3, 1, 3, 33.02))
sketch8.addConstraint(Sketcher.Constraint("DistanceX", 2, 3, 3, 3, 62.31))
sketch8.addConstraint(Sketcher.Constraint("DistanceX", 0, 3, -1, 1, 83.105))
sketch8.addConstraint(Sketcher.Constraint("DistanceY", -1, 1, 1, 3, 90.915))
pad6 = doc.addObject("PartDesign::Pad", "Pad005")
body.addObject(pad6)
pad6.Profile = sketch8
pad6.Length = 3
pad6.Reversed = True

# Sketch on XY plane
sketch9 = doc.addObject("Sketcher::SketchObject", "Sketch008")
body.addObject(sketch9)
sketch9.AttachmentSupport = (doc.XY_Plane, [""])
sketch9.MapMode = "FlatFace"
sketch9.addGeometry(Part.Circle(App.Vector(-8.81, 90.915, 0), App.Vector(0, 0, 1), 1.4), False)
sketch9.addGeometry(Part.Circle(App.Vector(-16.985, 58.53, 0), App.Vector(0, 0, 1), 1.4), False)
sketch9.addGeometry(Part.Circle(App.Vector(-79.295, 57.895, 0), App.Vector(0, 0, 1), 1.4), False)
sketch9.addGeometry(Part.Circle(App.Vector(-83.105, 90.28, 0), App.Vector(0, 0, 1), 1.4), False)
sketch9.addConstraint(Sketcher.Constraint("Equal", 0, 1))
sketch9.addConstraint(Sketcher.Constraint("Equal", 1, 2))
sketch9.addConstraint(Sketcher.Constraint("Equal", 2, 3))
sketch9.addConstraint(Sketcher.Constraint("Diameter", 0, 2.8))
sketch9.addConstraint(Sketcher.Constraint("DistanceX", 0, 3, -1, 1, 8.81))
sketch9.addConstraint(Sketcher.Constraint("DistanceY", -1, 1, 1, 3, 58.53))
sketch9.addConstraint(Sketcher.Constraint("DistanceY", -1, 1, 3, 3, 90.28))
sketch9.addConstraint(Sketcher.Constraint("DistanceX", 2, 3, 1, 3, 62.31))
sketch9.addConstraint(Sketcher.Constraint("DistanceY", 2, 3, 0, 3, 33.02))
sketch9.addConstraint(Sketcher.Constraint("DistanceX", 3, 3, 2, 3, 3.81))
sketch9.addConstraint(Sketcher.Constraint("DistanceY", -1, 1, 0, 3, 90.915))
sketch9.addConstraint(Sketcher.Constraint("DistanceX", 1, 3, -1, 1, 16.985))
doc.recompute()
hole2 = doc.addObject("PartDesign::Hole", "Hole001")
body.addObject(hole2)
hole2.Profile = sketch9
hole2.ThreadType = "None"
hole2.Diameter = 2.8
hole2.DepthType = "ThroughAll"

# Sketch on XY plane
sketch10 = doc.addObject("Sketcher::SketchObject", "Sketch009")
body.addObject(sketch10)
sketch10.AttachmentSupport = (doc.XY_Plane, [""])
sketch10.MapMode = "FlatFace"
sketch10.AttachmentOffset = App.Placement(App.Vector(0, 0, -9), App.Rotation())
sketch10.addGeometry(Part.LineSegment(App.Vector(-3, 7, 0), App.Vector(-90.185, 7, 0)), False)
sketch10.addGeometry(Part.LineSegment(App.Vector(-90.185, 7, 0), App.Vector(-90.185, 97.4179, 0)), False)
sketch10.addGeometry(Part.LineSegment(App.Vector(-90.185, 97.4179, 0), App.Vector(-3, 97.3586, 0)), False)
sketch10.addGeometry(Part.LineSegment(App.Vector(-3, 97.3586, 0), App.Vector(-3, 7, 0)), False)
sketch10.addConstraint(Sketcher.Constraint("Coincident", 0, 2, 1, 1))
sketch10.addConstraint(Sketcher.Constraint("Coincident", 1, 2, 2, 1))
sketch10.addConstraint(Sketcher.Constraint("Coincident", 2, 2, 3, 1))
sketch10.addConstraint(Sketcher.Constraint("Coincident", 3, 2, 0, 1))
sketch10.addConstraint(Sketcher.Constraint("Horizontal", 0))
sketch10.addConstraint(Sketcher.Constraint("Vertical", 1))
sketch10.addConstraint(Sketcher.Constraint("Vertical", 3))
sketch10.addConstraint(Sketcher.Constraint("DistanceY", -1, 1, 0, 2, 7.0))
sketch10.addConstraint(Sketcher.Constraint("DistanceX", 2, 2, -1, 1, 3.0))
sketch10.addConstraint(Sketcher.Constraint("Angle", 2, Q("-0.039 deg")))
sketch10.addConstraint(Sketcher.Constraint("DistanceX", 0, 2, 0, 1, 87.185))
sketch10.addConstraint(Sketcher.Constraint("DistanceY", 1, 1, 1, 2, 90.418))
pocket2 = doc.addObject("PartDesign::Pocket", "Pocket001")
body.addObject(pocket2)
pocket2.Profile = sketch10
pocket2.Type = "ThroughAll"

doc.recompute()
